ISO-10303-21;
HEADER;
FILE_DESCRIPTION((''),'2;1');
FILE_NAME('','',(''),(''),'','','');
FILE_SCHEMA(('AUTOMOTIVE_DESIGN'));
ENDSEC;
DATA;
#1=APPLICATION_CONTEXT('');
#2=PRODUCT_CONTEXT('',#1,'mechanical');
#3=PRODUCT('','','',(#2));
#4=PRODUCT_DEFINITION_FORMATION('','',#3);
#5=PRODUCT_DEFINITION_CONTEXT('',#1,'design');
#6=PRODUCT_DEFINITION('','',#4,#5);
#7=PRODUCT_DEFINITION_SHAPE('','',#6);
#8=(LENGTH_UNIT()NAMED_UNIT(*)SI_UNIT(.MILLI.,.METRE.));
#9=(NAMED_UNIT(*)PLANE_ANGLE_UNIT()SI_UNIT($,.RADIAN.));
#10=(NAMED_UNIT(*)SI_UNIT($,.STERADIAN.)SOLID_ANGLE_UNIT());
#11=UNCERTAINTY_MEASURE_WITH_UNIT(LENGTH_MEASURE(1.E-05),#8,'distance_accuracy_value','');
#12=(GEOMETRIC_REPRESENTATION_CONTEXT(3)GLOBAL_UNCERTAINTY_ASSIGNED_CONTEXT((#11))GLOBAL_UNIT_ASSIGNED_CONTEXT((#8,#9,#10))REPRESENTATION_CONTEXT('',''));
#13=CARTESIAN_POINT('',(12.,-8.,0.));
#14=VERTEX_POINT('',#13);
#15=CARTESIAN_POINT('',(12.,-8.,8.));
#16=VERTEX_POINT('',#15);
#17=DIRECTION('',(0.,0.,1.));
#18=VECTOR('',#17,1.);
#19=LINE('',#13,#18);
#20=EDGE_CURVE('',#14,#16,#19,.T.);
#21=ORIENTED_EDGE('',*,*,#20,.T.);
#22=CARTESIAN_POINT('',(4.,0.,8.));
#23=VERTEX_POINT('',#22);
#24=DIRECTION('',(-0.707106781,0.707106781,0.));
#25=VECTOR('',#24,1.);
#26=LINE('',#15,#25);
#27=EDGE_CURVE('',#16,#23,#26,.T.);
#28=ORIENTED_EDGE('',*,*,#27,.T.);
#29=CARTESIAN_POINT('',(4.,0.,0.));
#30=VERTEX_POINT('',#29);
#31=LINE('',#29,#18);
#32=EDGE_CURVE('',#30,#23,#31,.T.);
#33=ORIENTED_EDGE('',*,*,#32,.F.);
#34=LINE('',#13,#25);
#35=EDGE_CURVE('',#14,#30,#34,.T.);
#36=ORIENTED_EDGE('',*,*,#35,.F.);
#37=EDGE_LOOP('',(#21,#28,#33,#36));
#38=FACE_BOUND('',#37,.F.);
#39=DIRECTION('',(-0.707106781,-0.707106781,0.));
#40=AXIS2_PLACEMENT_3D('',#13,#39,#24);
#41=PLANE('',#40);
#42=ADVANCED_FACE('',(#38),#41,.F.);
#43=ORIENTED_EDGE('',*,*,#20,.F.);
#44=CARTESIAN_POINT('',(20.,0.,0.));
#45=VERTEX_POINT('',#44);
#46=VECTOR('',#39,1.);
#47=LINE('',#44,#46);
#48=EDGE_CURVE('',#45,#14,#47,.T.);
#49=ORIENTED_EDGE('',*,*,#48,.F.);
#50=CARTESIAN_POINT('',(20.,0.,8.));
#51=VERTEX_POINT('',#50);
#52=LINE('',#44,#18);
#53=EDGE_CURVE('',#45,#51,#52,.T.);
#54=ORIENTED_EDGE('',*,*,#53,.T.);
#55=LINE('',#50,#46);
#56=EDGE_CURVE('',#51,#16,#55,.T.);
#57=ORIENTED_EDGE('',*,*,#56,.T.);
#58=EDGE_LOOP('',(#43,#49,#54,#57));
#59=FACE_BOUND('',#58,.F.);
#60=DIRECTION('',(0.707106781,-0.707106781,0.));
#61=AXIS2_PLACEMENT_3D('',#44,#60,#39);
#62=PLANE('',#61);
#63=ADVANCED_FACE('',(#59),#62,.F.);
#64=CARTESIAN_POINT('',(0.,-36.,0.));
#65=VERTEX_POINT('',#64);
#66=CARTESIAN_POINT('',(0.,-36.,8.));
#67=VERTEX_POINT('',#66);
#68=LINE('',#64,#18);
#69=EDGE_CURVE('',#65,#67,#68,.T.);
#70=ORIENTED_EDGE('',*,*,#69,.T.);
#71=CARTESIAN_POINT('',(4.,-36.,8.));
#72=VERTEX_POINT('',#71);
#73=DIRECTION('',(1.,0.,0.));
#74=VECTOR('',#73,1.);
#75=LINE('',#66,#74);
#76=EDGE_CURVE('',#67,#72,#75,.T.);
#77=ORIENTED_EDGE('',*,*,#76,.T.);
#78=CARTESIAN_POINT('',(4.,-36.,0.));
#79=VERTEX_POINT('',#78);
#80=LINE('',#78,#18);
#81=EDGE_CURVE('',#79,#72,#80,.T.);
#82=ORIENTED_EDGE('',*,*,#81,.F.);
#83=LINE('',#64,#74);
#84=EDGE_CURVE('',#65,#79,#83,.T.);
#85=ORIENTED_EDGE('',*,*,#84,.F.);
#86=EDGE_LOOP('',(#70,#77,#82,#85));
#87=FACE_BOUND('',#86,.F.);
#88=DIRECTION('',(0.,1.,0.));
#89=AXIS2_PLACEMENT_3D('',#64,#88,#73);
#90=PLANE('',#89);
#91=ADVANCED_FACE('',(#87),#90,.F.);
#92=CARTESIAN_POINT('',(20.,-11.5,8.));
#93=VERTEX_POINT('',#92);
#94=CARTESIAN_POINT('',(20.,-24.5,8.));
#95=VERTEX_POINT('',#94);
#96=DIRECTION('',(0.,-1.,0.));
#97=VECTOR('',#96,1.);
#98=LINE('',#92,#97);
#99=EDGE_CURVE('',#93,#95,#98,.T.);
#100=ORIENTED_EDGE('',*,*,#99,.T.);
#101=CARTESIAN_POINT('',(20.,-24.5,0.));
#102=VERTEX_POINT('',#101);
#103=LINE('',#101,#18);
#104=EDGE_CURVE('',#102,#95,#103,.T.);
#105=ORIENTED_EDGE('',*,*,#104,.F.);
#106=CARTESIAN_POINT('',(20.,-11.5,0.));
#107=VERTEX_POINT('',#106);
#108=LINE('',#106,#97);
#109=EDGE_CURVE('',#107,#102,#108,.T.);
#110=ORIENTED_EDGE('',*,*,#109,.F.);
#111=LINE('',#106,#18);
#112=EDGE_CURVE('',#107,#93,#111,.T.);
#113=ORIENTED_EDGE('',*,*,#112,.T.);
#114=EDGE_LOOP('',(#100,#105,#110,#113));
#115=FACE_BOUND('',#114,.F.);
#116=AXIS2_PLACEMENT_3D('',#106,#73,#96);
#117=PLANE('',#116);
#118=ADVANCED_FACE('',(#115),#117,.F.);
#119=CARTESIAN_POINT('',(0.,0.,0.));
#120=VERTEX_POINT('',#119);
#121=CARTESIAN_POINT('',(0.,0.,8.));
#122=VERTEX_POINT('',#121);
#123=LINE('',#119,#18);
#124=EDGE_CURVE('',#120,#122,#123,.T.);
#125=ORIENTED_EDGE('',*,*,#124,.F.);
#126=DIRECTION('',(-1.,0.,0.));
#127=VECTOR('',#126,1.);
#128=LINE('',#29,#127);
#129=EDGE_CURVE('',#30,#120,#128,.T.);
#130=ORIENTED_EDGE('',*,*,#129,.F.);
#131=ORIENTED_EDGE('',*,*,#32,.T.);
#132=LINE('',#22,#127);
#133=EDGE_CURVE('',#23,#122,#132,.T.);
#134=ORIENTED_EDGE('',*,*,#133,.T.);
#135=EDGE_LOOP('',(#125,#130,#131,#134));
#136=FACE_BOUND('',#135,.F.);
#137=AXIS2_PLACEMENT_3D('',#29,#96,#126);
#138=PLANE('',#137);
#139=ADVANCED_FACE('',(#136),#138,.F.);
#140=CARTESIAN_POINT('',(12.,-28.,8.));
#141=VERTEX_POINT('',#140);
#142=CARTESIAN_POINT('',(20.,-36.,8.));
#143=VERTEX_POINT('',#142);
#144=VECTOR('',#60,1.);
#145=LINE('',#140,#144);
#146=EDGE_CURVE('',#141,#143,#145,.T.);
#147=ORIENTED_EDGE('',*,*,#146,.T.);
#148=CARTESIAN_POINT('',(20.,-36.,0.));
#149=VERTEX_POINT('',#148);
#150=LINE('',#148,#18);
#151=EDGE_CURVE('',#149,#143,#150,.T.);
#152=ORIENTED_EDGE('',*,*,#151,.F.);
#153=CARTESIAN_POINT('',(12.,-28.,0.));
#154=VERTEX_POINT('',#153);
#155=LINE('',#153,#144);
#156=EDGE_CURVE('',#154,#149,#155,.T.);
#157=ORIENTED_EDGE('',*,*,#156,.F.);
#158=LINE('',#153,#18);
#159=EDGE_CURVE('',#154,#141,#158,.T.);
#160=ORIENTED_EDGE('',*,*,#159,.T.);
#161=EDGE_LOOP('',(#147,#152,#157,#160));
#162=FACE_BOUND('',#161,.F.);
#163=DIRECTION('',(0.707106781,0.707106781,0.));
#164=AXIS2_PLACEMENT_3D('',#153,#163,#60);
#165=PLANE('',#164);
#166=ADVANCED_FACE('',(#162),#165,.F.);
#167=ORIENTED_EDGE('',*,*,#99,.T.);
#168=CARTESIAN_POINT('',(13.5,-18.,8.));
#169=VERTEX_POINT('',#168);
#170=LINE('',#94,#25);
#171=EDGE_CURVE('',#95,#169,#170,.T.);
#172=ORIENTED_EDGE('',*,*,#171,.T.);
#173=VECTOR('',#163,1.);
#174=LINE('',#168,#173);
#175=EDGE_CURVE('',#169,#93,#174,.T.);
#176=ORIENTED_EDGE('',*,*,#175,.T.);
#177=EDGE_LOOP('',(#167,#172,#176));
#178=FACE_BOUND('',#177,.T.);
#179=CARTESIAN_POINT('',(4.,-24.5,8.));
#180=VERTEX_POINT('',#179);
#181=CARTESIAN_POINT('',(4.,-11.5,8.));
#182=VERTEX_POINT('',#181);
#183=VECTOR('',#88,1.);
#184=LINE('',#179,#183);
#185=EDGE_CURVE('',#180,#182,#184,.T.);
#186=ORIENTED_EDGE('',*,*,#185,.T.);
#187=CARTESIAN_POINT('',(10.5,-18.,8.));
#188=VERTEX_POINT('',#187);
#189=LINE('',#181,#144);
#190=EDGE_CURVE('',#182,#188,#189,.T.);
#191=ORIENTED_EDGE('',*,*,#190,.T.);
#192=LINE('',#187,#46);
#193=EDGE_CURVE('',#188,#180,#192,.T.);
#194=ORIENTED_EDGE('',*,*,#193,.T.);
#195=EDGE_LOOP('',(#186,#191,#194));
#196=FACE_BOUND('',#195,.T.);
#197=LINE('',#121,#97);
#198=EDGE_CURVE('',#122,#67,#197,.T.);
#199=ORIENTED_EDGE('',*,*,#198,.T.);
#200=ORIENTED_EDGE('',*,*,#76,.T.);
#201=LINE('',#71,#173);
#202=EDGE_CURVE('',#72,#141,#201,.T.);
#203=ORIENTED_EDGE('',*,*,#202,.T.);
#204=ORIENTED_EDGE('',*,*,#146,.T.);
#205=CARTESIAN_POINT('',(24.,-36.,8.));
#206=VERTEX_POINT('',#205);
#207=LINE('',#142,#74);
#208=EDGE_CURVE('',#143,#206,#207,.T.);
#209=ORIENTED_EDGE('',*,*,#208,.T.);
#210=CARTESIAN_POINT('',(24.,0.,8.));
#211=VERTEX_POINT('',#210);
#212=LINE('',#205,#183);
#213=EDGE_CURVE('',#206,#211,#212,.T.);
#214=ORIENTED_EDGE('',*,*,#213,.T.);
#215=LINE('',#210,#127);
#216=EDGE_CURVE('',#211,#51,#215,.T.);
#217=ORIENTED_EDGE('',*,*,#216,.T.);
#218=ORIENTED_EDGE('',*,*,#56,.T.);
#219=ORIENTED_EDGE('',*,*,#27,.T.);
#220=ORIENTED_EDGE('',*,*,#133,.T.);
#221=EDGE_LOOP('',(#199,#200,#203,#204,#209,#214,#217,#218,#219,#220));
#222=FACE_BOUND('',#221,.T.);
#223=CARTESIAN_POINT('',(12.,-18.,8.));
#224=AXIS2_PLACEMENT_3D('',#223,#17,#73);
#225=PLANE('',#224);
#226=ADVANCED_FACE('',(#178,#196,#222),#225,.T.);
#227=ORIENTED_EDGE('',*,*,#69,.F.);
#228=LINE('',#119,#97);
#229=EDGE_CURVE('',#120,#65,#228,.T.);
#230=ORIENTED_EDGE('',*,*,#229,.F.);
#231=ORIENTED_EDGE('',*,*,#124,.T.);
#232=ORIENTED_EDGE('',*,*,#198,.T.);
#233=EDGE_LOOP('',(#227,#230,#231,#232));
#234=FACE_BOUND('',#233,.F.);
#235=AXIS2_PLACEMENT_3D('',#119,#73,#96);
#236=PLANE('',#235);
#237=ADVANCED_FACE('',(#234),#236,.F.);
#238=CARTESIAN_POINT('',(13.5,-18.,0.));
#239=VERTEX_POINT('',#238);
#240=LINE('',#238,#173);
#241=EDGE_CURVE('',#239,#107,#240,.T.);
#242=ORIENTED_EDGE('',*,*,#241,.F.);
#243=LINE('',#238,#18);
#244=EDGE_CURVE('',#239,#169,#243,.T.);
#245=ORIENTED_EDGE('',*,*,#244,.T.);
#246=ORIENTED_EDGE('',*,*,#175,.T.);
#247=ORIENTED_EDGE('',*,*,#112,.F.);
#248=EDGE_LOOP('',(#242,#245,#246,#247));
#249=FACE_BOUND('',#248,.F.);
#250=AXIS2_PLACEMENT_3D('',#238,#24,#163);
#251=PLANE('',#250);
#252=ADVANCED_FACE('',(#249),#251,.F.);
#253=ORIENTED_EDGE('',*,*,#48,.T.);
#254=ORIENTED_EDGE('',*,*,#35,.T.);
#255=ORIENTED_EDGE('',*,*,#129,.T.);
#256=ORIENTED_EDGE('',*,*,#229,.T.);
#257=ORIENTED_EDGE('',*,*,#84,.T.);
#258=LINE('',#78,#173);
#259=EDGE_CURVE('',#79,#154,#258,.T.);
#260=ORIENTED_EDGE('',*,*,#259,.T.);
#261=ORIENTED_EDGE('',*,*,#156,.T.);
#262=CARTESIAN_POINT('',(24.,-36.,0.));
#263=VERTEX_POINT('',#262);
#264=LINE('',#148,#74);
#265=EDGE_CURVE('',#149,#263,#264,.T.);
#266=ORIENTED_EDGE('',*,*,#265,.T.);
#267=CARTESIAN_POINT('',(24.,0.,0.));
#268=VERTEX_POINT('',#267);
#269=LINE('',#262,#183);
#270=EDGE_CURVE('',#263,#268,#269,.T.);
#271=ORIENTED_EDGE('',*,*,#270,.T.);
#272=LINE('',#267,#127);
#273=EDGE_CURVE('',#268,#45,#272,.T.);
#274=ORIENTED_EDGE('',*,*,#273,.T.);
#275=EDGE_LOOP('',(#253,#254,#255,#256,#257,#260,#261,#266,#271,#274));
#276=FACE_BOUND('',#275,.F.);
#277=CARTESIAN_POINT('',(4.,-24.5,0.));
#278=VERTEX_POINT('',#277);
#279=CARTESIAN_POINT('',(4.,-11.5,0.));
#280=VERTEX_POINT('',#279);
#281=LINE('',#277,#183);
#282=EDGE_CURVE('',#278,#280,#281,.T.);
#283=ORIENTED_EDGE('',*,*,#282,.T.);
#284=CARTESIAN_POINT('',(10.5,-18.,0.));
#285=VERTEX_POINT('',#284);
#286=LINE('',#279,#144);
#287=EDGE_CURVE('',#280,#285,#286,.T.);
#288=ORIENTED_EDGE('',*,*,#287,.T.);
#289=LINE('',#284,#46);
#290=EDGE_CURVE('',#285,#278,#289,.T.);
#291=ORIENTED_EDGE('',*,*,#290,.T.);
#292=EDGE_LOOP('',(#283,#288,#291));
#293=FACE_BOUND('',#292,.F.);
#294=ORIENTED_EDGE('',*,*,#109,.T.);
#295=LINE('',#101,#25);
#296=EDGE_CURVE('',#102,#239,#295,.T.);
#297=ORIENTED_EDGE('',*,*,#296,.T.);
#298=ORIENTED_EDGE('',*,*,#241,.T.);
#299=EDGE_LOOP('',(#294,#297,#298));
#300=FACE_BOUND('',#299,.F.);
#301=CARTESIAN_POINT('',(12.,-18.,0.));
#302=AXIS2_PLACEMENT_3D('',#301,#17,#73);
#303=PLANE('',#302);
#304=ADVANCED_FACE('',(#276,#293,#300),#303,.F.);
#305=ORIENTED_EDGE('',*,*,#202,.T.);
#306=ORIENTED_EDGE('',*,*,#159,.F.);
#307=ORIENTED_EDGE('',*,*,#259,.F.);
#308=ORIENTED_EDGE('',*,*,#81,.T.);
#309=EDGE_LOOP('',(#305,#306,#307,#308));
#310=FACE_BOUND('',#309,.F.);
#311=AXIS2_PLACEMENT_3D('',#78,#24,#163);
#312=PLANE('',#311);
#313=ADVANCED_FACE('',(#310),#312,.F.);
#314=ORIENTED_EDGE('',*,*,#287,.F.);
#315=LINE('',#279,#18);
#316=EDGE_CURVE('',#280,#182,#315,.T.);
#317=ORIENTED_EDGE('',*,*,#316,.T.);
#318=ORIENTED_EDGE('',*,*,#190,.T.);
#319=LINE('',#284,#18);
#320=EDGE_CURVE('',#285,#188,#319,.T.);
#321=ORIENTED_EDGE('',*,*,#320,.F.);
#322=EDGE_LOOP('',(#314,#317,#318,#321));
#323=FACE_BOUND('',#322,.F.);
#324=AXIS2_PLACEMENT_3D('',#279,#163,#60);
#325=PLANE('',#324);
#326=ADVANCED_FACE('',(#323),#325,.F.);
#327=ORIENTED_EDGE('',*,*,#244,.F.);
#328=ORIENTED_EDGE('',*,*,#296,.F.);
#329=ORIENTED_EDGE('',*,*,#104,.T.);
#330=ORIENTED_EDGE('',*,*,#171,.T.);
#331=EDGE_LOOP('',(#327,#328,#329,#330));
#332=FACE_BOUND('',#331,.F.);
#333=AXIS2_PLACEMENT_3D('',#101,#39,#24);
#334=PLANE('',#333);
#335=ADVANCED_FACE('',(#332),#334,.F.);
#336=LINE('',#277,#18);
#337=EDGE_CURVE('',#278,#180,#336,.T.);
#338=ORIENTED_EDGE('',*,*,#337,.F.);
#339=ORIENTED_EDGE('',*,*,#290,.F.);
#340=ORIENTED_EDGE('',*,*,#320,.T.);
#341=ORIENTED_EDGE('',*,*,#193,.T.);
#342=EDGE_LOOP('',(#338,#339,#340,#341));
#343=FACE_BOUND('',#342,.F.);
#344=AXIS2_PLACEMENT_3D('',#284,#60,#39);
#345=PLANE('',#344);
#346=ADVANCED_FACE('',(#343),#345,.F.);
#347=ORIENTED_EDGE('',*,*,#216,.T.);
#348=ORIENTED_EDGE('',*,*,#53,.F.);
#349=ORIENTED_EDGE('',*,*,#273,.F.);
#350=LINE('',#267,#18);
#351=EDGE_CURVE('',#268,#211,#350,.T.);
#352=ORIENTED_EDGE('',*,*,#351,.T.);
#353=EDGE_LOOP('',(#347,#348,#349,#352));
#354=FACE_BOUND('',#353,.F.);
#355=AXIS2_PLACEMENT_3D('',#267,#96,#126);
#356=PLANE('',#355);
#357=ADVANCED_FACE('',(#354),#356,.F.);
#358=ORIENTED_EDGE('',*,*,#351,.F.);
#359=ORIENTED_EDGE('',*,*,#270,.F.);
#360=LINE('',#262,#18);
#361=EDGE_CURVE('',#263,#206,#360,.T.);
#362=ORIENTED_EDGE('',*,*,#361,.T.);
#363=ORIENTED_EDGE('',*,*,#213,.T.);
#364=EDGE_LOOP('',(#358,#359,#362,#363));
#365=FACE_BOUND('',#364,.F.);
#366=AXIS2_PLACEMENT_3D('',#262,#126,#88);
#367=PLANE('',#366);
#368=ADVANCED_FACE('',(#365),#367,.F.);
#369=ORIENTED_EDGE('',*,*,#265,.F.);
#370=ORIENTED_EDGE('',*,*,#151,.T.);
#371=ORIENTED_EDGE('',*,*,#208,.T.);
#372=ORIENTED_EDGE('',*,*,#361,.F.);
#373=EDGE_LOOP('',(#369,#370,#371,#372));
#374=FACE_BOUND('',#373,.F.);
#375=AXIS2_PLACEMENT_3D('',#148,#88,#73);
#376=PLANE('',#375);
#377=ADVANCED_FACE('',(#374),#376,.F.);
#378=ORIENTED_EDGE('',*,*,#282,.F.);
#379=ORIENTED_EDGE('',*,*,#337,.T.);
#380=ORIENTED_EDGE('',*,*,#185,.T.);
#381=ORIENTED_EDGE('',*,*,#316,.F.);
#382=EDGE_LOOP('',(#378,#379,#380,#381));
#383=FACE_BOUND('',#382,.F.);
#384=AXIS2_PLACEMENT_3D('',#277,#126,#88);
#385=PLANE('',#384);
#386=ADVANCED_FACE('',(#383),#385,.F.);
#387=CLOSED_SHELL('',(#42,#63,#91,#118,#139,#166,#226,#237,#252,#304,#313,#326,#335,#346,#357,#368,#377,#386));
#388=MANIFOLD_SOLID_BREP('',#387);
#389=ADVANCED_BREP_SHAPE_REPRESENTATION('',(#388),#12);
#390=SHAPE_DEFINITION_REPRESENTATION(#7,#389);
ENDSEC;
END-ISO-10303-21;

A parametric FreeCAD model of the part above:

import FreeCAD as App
import Part
import Sketcher

V = App.Vector
Q = App.Units.Quantity

doc = App.newDocument("Part")
body = doc.addObject("PartDesign::Body", "Body")

# Sketch on XY plane
sketch1 = body.newObject("Sketcher::SketchObject", "Sketch")
sketch1.AttachmentSupport = (doc.getObject("XY_Plane"), [""])
sketch1.MapMode = "FlatFace"
sketch1.addGeometry(Part.LineSegment(V(4, 0, 0), V(0, 0, 0)), False)
sketch1.addGeometry(Part.LineSegment(V(0, 0, 0), V(0, -36, 0)), False)
sketch1.addGeometry(Part.LineSegment(V(0, -36, 0), V(4, -36, 0)), False)
sketch1.addGeometry(Part.LineSegment(V(4, -36, 0), V(12, -28, 0)), False)
sketch1.addGeometry(Part.LineSegment(V(12, -28, 0), V(20, -36, 0)), False)
sketch1.addGeometry(Part.LineSegment(V(20, -36, 0), V(24, -36, 0)), False)
sketch1.addGeometry(Part.LineSegment(V(24, -36, 0), V(24, 0, 0)), False)
sketch1.addGeometry(Part.LineSegment(V(24, 0, 0), V(20, 0, 0)), False)
sketch1.addGeometry(Part.LineSegment(V(20, 0, 0), V(12, -8, 0)), False)
sketch1.addGeometry(Part.LineSegment(V(12, -8, 0), V(4, 0, 0)), False)
sketch1.addGeometry(Part.LineSegment(V(10.5, -18, 0), V(4, -24.5, 0)), False)
sketch1.addGeometry(Part.LineSegment(V(4, -24.5, 0), V(4, -11.5, 0)), False)
sketch1.addGeometry(Part.LineSegment(V(4, -11.5, 0), V(10.5, -18, 0)), False)
sketch1.addGeometry(Part.LineSegment(V(20, -11.5, 0), V(20, -24.5, 0)), False)
sketch1.addGeometry(Part.LineSegment(V(20, -24.5, 0), V(13.5, -18, 0)), False)
sketch1.addGeometry(Part.LineSegment(V(13.5, -18, 0), V(20, -11.5, 0)), False)
sketch1.addConstraint(Sketcher.Constraint("Coincident", 0, 2, 1, 1))
sketch1.addConstraint(Sketcher.Constraint("Coincident", 1, 2, 2, 1))
sketch1.addConstraint(Sketcher.Constraint("Coincident", 2, 2, 3, 1))
sketch1.addConstraint(Sketcher.Constraint("Coincident", 3, 2, 4, 1))
sketch1.addConstraint(Sketcher.Constraint("Coincident", 4, 2, 5, 1))
sketch1.addConstraint(Sketcher.Constraint("Coincident", 5, 2, 6, 1))
sketch1.addConstraint(Sketcher.Constraint("Coincident", 6, 2, 7, 1))
sketch1.addConstraint(Sketcher.Constraint("Coincident", 7, 2, 8, 1))
sketch1.addConstraint(Sketcher.Constraint("Coincident", 8, 2, 9, 1))
sketch1.addConstraint(Sketcher.Constraint("Coincident", 9, 2, 0, 1))
sketch1.addConstraint(Sketcher.Constraint("Coincident", 10, 2, 11, 1))
sketch1.addConstraint(Sketcher.Constraint("Coincident", 11, 2, 12, 1))
sketch1.addConstraint(Sketcher.Constraint("Coincident", 12, 2, 10, 1))
sketch1.addConstraint(Sketcher.Constraint("Coincident", 13, 2, 14, 1))
sketch1.addConstraint(Sketcher.Constraint("Coincident", 14, 2, 15, 1))
sketch1.addConstraint(Sketcher.Constraint("Coincident", 15, 2, 13, 1))
sketch1.addConstraint(Sketcher.Constraint("Horizontal", 0))
sketch1.addConstraint(Sketcher.Constraint("Vertical", 1))
sketch1.addConstraint(Sketcher.Constraint("Horizontal", 2))
sketch1.addConstraint(Sketcher.Constraint("Horizontal", 5))
sketch1.addConstraint(Sketcher.Constraint("Vertical", 6))
sketch1.addConstraint(Sketcher.Constraint("Horizontal", 7))
sketch1.addConstraint(Sketcher.Constraint("Vertical", 11))
sketch1.addConstraint(Sketcher.Constraint("Vertical", 13))
sketch1.addConstraint(Sketcher.Constraint("Coincident", 0, 2, -1, 1))
sketch1.addConstraint(Sketcher.Constraint("PointOnObject", 6, 2, -1))
sketch1.addConstraint(Sketcher.Constraint("Perpendicular", 3, 4))
sketch1.addConstraint(Sketcher.Constraint("Perpendicular", 4, 8))
sketch1.addConstraint(Sketcher.Constraint("Perpendicular", 8, 9))
sketch1.addConstraint(Sketcher.Constraint("Perpendicular", 9, 10))
sketch1.addConstraint(Sketcher.Constraint("Perpendicular", 10, 12))
sketch1.addConstraint(Sketcher.Constraint("Parallel", 12, 14))
sketch1.addConstraint(Sketcher.Constraint("Perpendicular", 14, 15))
sketch1.addConstraint(Sketcher.Constraint("Horizontal", 2, 2, 4, 2))
sketch1.addConstraint(Sketcher.Constraint("Horizontal", 10, 2, 13, 2))
sketch1.addConstraint(Sketcher.Constraint("Horizontal", 12, 2, 14, 2))
sketch1.addConstraint(Sketcher.Constraint("Horizontal", 11, 2, 15, 2))
sketch1.addConstraint(Sketcher.Constraint("Vertical", 4, 2, 7, 2))
sketch1.addConstraint(Sketcher.Constraint("Vertical", 3, 2, 8, 2))
sketch1.addConstraint(Sketcher.Constraint("Vertical", 9, 2, 10, 2))
sketch1.addConstraint(Sketcher.Constraint("Vertical", 7, 2, 13, 2))
sketch1.addConstraint(Sketcher.Constraint("Equal", 2, 5))
sketch1.addConstraint(Sketcher.Constraint("DistanceX", 0, 2, 0, 1, Q("4 mm")))
sketch1.addConstraint(Sketcher.Constraint("DistanceY", 1, 2, 1, 1, Q("36 mm")))
sketch1.addConstraint(Sketcher.Constraint("DistanceY", 11, 1, 11, 2, Q("13 mm")))
sketch1.addConstraint(Sketcher.Constraint("DistanceX", -1, 1, 3, 2, Q("12 mm")))
sketch1.addConstraint(Sketcher.Constraint("DistanceY", 12, 2, -1, 1, Q("18 mm")))
pad1 = body.newObject("PartDesign::Pad", "Pad")
pad1.Profile = sketch1
pad1.Length = 8

doc.recompute()
